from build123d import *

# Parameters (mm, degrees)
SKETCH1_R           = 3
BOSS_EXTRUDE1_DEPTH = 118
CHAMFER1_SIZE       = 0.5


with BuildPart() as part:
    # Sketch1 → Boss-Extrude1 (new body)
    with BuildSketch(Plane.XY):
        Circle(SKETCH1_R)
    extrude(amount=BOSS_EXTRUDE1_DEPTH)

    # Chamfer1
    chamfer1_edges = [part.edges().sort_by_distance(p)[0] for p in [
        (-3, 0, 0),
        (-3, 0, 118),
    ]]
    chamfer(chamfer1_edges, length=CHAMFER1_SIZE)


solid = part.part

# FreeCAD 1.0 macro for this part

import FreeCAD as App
import Part
import Sketcher

V = App.Vector
Q = App.Units.Quantity


def edges_at(feature, points):
    """Names of the edges that pass closest to the given points."""
    edges = feature.Shape.Edges
    near = lambda p: min(range(len(edges)), key=lambda i: edges[i].distToShape(Part.Vertex(*p))[0])
    return sorted({f"Edge{near(p) + 1}" for p in points})

doc = App.newDocument("Part")
body = doc.addObject("PartDesign::Body", "Body")

# Sketch on XY plane
sketch1 = doc.addObject("Sketcher::SketchObject", "Sketch")
body.addObject(sketch1)
sketch1.AttachmentSupport = (doc.XY_Plane, [""])
sketch1.MapMode = "FlatFace"
sketch1.addGeometry(Part.Circle(V(0, 0, 0), V(0, 0, 1), 3), False)
sketch1.addConstraint([
    Sketcher.Constraint("Coincident", 0, 3, -1, 1),
    Sketcher.Constraint("Diameter", 0, Q("6 mm")),
])
pad1 = doc.addObject("PartDesign::Pad", "Pad")
body.addObject(pad1)
pad1.Profile = sketch1
pad1.Length = 118
doc.recompute()

chamfer = doc.addObject("PartDesign::Chamfer", "Chamfer")
body.addObject(chamfer)
chamfer.Base = (pad1, edges_at(pad1, [(-3, 0, 0), (-3, 0, 118)]))
chamfer.Size = 0.5

doc.recompute()
